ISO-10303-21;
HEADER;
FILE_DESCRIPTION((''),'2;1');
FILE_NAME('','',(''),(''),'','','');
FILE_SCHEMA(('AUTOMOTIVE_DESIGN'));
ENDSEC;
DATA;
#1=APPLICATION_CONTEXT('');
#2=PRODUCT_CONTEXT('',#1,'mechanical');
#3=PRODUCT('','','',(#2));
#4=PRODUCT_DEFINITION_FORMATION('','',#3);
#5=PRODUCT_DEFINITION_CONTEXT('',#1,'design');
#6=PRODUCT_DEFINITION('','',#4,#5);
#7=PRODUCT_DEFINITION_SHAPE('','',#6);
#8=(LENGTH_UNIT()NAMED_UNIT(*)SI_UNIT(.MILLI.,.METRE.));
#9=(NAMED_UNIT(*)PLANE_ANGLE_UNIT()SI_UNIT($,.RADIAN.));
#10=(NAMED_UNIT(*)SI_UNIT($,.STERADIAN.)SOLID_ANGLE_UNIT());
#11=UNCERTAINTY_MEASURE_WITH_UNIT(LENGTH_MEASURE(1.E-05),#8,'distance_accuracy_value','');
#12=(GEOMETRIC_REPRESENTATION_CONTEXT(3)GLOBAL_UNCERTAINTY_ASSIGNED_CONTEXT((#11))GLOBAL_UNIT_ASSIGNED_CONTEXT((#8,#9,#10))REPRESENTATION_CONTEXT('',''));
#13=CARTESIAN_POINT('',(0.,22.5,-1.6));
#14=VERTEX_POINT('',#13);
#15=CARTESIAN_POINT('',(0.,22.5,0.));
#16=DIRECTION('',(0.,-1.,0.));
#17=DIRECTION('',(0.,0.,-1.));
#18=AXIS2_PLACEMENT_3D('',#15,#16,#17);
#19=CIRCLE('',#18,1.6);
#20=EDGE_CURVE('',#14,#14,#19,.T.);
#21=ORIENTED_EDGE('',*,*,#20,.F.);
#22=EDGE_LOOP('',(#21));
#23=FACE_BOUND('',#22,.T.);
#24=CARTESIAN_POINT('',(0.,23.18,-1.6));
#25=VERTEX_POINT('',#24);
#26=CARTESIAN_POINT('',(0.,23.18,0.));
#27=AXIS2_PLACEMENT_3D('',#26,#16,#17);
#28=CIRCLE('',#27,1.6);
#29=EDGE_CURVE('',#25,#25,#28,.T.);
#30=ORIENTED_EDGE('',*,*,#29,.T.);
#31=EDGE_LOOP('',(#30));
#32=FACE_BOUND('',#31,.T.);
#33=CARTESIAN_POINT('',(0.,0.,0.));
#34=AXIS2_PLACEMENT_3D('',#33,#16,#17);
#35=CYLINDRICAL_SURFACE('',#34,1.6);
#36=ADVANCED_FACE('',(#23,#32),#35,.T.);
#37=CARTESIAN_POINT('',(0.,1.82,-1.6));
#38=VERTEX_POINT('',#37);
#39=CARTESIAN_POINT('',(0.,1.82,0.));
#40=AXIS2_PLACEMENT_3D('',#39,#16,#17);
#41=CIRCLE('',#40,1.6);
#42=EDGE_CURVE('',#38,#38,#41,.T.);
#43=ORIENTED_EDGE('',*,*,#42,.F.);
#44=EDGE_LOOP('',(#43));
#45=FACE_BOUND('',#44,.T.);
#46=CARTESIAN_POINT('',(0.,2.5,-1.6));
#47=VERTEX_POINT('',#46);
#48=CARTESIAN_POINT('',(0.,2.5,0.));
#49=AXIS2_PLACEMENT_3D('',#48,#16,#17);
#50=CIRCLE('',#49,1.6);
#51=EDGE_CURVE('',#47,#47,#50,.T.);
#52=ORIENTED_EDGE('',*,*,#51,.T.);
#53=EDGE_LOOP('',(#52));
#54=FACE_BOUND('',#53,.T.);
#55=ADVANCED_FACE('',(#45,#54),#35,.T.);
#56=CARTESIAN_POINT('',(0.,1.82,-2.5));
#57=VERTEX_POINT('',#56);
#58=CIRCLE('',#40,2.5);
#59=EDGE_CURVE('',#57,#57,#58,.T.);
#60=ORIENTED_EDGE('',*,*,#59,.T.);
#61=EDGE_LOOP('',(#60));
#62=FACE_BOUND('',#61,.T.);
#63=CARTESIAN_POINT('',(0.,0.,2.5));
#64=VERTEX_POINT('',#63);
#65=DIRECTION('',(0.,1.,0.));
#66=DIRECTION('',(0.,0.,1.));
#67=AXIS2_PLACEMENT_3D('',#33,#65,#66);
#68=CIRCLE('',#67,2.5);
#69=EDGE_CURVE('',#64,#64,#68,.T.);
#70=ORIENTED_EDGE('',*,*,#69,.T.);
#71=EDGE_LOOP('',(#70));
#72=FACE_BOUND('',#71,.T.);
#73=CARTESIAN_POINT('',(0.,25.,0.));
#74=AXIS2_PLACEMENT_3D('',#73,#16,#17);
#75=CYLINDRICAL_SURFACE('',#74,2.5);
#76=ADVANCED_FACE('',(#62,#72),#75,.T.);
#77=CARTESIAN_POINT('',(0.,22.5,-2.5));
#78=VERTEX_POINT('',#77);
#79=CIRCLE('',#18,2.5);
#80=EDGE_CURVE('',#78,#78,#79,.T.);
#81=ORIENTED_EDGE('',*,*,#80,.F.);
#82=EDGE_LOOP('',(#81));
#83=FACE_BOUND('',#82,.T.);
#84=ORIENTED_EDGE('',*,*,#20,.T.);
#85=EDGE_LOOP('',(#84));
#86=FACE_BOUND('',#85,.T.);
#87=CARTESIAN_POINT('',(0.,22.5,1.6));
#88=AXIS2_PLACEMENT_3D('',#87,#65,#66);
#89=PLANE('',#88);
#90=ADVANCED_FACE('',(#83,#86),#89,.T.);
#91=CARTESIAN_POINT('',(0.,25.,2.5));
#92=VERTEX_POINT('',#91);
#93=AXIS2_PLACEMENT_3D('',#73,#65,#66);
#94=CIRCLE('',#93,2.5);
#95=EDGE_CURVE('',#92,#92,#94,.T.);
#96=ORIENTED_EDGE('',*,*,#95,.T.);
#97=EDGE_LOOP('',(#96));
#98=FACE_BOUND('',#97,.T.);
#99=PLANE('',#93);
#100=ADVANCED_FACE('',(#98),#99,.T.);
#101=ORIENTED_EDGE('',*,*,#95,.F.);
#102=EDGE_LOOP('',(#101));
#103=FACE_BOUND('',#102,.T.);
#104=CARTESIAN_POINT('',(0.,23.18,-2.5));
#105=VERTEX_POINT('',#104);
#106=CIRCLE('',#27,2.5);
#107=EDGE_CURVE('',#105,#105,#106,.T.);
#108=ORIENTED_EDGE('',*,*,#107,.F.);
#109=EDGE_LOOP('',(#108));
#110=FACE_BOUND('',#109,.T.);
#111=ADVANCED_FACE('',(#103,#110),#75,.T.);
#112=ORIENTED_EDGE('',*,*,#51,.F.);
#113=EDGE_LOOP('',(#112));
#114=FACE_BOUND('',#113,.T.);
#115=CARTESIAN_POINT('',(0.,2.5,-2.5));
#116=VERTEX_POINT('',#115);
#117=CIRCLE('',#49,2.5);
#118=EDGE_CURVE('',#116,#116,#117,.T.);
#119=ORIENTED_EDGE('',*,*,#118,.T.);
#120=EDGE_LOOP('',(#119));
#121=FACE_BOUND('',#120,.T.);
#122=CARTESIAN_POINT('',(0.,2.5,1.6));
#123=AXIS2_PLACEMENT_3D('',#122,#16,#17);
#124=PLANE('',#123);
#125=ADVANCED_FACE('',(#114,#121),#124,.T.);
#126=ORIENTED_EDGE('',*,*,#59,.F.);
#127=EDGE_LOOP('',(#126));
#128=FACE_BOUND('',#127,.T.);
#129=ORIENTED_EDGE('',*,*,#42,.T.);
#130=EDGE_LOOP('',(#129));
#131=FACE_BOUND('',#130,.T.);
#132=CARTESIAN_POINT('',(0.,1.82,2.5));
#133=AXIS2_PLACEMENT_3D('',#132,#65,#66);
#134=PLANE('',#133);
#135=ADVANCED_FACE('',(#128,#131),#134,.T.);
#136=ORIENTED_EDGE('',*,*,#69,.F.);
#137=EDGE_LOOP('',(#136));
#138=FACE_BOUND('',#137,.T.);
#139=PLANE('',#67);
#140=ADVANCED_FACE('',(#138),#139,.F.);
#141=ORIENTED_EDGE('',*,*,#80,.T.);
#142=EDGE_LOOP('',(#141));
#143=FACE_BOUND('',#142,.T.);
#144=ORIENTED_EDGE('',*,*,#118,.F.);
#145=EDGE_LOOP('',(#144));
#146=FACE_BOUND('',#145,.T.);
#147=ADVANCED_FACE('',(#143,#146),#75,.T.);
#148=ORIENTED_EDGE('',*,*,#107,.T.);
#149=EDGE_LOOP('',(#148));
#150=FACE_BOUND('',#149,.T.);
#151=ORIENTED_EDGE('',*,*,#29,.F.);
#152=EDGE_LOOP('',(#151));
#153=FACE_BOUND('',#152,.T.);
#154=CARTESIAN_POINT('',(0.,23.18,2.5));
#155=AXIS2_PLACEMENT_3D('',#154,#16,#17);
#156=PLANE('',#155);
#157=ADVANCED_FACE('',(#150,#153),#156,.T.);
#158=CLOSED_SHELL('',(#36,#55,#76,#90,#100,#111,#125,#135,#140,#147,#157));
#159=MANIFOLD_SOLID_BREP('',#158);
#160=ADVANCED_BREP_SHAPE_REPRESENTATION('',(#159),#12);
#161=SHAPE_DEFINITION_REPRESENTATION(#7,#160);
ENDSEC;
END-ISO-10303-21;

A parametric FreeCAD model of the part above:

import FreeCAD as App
import Part
import Sketcher
from FreeCAD import Vector
Q = App.Units.Quantity

doc = App.newDocument("Part")
body = doc.addObject("PartDesign::Body", "Body")

sketch1 = doc.addObject("Sketcher::SketchObject", "Sketch")
body.addObject(sketch1)
sketch1.AttachmentSupport = (doc.XZ_Plane, [""])
sketch1.MapMode = "FlatFace"
sketch1.addGeometry(Part.Circle(Vector(0, 0, 0), Vector(0, 0, 1), 2.5), False)
sketch1.addConstraint([
    Sketcher.Constraint("Coincident", 0, 3, -1, 1),
    Sketcher.Constraint("Diameter", 0, Q("5 mm")),
])
pad1 = doc.addObject("PartDesign::Pad", "Pad")
body.addObject(pad1)
pad1.Profile = sketch1
pad1.Length = 25
pad1.Reversed = True

sketch2 = doc.addObject("Sketcher::SketchObject", "Sketch001")
body.addObject(sketch2)
sketch2.AttachmentSupport = (doc.YZ_Plane, [""])
sketch2.MapMode = "FlatFace"
sketch2.addGeometry([
    Part.LineSegment(Vector(2.5, 2.5, 0), Vector(1.8, 2.5, 0)),
    Part.LineSegment(Vector(1.8, 2.5, 0), Vector(1.8, 1.6, 0)),
    Part.LineSegment(Vector(1.8, 1.6, 0), Vector(2.5, 1.6, 0)),
    Part.LineSegment(Vector(2.5, 1.6, 0), Vector(2.5, 2.5, 0)),
    Part.LineSegment(Vector(23.2, 2.5, 0), Vector(22.5, 2.5, 0)),
    Part.LineSegment(Vector(22.5, 2.5, 0), Vector(22.5, 1.6, 0)),
    Part.LineSegment(Vector(22.5, 1.6, 0), Vector(23.2, 1.6, 0)),
    Part.LineSegment(Vector(23.2, 1.6, 0), Vector(23.2, 2.5, 0)),
], False)
sketch2.addConstraint([
    Sketcher.Constraint("Coincident", 0, 2, 1, 1),
    Sketcher.Constraint("Coincident", 1, 2, 2, 1),
    Sketcher.Constraint("Coincident", 2, 2, 3, 1),
    Sketcher.Constraint("Coincident", 3, 2, 0, 1),
    Sketcher.Constraint("Coincident", 4, 2, 5, 1),
    Sketcher.Constraint("Coincident", 5, 2, 6, 1),
    Sketcher.Constraint("Coincident", 6, 2, 7, 1),
    Sketcher.Constraint("Coincident", 7, 2, 4, 1),
    Sketcher.Constraint("Horizontal", 0),
    Sketcher.Constraint("Vertical", 1),
    Sketcher.Constraint("Horizontal", 2),
    Sketcher.Constraint("Vertical", 3),
    Sketcher.Constraint("Horizontal", 4),
    Sketcher.Constraint("Vertical", 5),
    Sketcher.Constraint("Horizontal", 6),
    Sketcher.Constraint("Vertical", 7),
    Sketcher.Constraint("Horizontal", 3, 2, 4, 2),
    Sketcher.Constraint("Horizontal", 2, 2, 5, 2),
    Sketcher.Constraint("Equal", 2, 4),
    Sketcher.Constraint("DistanceY", 1, 2, 1, 1, Q("0.9 mm")),
    Sketcher.Constraint("DistanceX", 3, 2, 4, 2, Q("20 mm")),
    Sketcher.Constraint("DistanceX", 0, 2, 0, 1, Q("0.68 mm")),
    Sketcher.Constraint("DistanceY", -1, 1, 0, 2, Q("2.5 mm")),
    Sketcher.Constraint("DistanceX", -1, 1, 2, 2, Q("2.5 mm")),
])
groove = doc.addObject("PartDesign::Groove", "Groove")
body.addObject(groove)
groove.Profile = sketch2
groove.ReferenceAxis = (sketch2, ["H_Axis"])
groove.Angle = 360

doc.recompute()
